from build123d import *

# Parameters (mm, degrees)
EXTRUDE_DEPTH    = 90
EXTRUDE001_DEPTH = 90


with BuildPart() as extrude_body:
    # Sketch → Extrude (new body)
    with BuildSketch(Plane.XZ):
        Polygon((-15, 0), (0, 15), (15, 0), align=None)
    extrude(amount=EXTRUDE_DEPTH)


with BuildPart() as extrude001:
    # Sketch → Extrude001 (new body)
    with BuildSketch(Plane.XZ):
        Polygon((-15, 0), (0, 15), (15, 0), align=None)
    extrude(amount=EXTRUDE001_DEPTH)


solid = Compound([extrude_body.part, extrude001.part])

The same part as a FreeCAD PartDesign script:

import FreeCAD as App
import Part
import Sketcher

V = App.Vector
Q = App.Units.Quantity

doc = App.newDocument("Part")
body = doc.addObject("PartDesign::Body", "Body")

# Sketch on XZ plane
sketch1 = body.newObject("Sketcher::SketchObject", "Sketch")
sketch1.AttachmentSupport = (doc.getObject("XZ_Plane"), [""])
sketch1.MapMode = "FlatFace"
sketch1.addGeometry([
    Part.LineSegment(V(0, 15, 0), V(-15, 0, 0)),
    Part.LineSegment(V(-15, 0, 0), V(15, 0, 0)),
    Part.LineSegment(V(15, 0, 0), V(0, 15, 0)),
], False)
sketch1.addConstraint([
    Sketcher.Constraint("Coincident", 0, 2, 1, 1),
    Sketcher.Constraint("Coincident", 1, 2, 2, 1),
    Sketcher.Constraint("Coincident", 2, 2, 0, 1),
    Sketcher.Constraint("Horizontal", 1),
    Sketcher.Constraint("Symmetric", 0, 2, 1, 2, -1, 1),
    Sketcher.Constraint("PointOnObject", 2, 2, -2),
    Sketcher.Constraint("Perpendicular", 0, 2),
    Sketcher.Constraint("DistanceX", 1, 1, 1, 2, Q("30 mm")),
])
pad1 = body.newObject("PartDesign::Pad", "Pad")
pad1.Profile = sketch1
pad1.Length = 90
body2 = doc.addObject("PartDesign::Body", "Body001")

# Sketch on XZ plane
sketch2 = body2.newObject("Sketcher::SketchObject", "Sketch001")
sketch2.AttachmentSupport = (doc.getObject("XZ_Plane001"), [""])
sketch2.MapMode = "FlatFace"
sketch2.addGeometry([
    Part.LineSegment(V(0, 15, 0), V(-15, 0, 0)),
    Part.LineSegment(V(-15, 0, 0), V(15, 0, 0)),
    Part.LineSegment(V(15, 0, 0), V(0, 15, 0)),
], False)
sketch2.addConstraint([
    Sketcher.Constraint("Coincident", 0, 2, 1, 1),
    Sketcher.Constraint("Coincident", 1, 2, 2, 1),
    Sketcher.Constraint("Coincident", 2, 2, 0, 1),
    Sketcher.Constraint("Horizontal", 1),
    Sketcher.Constraint("Symmetric", 0, 2, 1, 2, -1, 1),
    Sketcher.Constraint("PointOnObject", 2, 2, -2),
    Sketcher.Constraint("Perpendicular", 0, 2),
    Sketcher.Constraint("DistanceX", 1, 1, 1, 2, Q("30 mm")),
])
pad2 = body2.newObject("PartDesign::Pad", "Pad001")
pad2.Profile = sketch2
pad2.Length = 90

doc.recompute()
